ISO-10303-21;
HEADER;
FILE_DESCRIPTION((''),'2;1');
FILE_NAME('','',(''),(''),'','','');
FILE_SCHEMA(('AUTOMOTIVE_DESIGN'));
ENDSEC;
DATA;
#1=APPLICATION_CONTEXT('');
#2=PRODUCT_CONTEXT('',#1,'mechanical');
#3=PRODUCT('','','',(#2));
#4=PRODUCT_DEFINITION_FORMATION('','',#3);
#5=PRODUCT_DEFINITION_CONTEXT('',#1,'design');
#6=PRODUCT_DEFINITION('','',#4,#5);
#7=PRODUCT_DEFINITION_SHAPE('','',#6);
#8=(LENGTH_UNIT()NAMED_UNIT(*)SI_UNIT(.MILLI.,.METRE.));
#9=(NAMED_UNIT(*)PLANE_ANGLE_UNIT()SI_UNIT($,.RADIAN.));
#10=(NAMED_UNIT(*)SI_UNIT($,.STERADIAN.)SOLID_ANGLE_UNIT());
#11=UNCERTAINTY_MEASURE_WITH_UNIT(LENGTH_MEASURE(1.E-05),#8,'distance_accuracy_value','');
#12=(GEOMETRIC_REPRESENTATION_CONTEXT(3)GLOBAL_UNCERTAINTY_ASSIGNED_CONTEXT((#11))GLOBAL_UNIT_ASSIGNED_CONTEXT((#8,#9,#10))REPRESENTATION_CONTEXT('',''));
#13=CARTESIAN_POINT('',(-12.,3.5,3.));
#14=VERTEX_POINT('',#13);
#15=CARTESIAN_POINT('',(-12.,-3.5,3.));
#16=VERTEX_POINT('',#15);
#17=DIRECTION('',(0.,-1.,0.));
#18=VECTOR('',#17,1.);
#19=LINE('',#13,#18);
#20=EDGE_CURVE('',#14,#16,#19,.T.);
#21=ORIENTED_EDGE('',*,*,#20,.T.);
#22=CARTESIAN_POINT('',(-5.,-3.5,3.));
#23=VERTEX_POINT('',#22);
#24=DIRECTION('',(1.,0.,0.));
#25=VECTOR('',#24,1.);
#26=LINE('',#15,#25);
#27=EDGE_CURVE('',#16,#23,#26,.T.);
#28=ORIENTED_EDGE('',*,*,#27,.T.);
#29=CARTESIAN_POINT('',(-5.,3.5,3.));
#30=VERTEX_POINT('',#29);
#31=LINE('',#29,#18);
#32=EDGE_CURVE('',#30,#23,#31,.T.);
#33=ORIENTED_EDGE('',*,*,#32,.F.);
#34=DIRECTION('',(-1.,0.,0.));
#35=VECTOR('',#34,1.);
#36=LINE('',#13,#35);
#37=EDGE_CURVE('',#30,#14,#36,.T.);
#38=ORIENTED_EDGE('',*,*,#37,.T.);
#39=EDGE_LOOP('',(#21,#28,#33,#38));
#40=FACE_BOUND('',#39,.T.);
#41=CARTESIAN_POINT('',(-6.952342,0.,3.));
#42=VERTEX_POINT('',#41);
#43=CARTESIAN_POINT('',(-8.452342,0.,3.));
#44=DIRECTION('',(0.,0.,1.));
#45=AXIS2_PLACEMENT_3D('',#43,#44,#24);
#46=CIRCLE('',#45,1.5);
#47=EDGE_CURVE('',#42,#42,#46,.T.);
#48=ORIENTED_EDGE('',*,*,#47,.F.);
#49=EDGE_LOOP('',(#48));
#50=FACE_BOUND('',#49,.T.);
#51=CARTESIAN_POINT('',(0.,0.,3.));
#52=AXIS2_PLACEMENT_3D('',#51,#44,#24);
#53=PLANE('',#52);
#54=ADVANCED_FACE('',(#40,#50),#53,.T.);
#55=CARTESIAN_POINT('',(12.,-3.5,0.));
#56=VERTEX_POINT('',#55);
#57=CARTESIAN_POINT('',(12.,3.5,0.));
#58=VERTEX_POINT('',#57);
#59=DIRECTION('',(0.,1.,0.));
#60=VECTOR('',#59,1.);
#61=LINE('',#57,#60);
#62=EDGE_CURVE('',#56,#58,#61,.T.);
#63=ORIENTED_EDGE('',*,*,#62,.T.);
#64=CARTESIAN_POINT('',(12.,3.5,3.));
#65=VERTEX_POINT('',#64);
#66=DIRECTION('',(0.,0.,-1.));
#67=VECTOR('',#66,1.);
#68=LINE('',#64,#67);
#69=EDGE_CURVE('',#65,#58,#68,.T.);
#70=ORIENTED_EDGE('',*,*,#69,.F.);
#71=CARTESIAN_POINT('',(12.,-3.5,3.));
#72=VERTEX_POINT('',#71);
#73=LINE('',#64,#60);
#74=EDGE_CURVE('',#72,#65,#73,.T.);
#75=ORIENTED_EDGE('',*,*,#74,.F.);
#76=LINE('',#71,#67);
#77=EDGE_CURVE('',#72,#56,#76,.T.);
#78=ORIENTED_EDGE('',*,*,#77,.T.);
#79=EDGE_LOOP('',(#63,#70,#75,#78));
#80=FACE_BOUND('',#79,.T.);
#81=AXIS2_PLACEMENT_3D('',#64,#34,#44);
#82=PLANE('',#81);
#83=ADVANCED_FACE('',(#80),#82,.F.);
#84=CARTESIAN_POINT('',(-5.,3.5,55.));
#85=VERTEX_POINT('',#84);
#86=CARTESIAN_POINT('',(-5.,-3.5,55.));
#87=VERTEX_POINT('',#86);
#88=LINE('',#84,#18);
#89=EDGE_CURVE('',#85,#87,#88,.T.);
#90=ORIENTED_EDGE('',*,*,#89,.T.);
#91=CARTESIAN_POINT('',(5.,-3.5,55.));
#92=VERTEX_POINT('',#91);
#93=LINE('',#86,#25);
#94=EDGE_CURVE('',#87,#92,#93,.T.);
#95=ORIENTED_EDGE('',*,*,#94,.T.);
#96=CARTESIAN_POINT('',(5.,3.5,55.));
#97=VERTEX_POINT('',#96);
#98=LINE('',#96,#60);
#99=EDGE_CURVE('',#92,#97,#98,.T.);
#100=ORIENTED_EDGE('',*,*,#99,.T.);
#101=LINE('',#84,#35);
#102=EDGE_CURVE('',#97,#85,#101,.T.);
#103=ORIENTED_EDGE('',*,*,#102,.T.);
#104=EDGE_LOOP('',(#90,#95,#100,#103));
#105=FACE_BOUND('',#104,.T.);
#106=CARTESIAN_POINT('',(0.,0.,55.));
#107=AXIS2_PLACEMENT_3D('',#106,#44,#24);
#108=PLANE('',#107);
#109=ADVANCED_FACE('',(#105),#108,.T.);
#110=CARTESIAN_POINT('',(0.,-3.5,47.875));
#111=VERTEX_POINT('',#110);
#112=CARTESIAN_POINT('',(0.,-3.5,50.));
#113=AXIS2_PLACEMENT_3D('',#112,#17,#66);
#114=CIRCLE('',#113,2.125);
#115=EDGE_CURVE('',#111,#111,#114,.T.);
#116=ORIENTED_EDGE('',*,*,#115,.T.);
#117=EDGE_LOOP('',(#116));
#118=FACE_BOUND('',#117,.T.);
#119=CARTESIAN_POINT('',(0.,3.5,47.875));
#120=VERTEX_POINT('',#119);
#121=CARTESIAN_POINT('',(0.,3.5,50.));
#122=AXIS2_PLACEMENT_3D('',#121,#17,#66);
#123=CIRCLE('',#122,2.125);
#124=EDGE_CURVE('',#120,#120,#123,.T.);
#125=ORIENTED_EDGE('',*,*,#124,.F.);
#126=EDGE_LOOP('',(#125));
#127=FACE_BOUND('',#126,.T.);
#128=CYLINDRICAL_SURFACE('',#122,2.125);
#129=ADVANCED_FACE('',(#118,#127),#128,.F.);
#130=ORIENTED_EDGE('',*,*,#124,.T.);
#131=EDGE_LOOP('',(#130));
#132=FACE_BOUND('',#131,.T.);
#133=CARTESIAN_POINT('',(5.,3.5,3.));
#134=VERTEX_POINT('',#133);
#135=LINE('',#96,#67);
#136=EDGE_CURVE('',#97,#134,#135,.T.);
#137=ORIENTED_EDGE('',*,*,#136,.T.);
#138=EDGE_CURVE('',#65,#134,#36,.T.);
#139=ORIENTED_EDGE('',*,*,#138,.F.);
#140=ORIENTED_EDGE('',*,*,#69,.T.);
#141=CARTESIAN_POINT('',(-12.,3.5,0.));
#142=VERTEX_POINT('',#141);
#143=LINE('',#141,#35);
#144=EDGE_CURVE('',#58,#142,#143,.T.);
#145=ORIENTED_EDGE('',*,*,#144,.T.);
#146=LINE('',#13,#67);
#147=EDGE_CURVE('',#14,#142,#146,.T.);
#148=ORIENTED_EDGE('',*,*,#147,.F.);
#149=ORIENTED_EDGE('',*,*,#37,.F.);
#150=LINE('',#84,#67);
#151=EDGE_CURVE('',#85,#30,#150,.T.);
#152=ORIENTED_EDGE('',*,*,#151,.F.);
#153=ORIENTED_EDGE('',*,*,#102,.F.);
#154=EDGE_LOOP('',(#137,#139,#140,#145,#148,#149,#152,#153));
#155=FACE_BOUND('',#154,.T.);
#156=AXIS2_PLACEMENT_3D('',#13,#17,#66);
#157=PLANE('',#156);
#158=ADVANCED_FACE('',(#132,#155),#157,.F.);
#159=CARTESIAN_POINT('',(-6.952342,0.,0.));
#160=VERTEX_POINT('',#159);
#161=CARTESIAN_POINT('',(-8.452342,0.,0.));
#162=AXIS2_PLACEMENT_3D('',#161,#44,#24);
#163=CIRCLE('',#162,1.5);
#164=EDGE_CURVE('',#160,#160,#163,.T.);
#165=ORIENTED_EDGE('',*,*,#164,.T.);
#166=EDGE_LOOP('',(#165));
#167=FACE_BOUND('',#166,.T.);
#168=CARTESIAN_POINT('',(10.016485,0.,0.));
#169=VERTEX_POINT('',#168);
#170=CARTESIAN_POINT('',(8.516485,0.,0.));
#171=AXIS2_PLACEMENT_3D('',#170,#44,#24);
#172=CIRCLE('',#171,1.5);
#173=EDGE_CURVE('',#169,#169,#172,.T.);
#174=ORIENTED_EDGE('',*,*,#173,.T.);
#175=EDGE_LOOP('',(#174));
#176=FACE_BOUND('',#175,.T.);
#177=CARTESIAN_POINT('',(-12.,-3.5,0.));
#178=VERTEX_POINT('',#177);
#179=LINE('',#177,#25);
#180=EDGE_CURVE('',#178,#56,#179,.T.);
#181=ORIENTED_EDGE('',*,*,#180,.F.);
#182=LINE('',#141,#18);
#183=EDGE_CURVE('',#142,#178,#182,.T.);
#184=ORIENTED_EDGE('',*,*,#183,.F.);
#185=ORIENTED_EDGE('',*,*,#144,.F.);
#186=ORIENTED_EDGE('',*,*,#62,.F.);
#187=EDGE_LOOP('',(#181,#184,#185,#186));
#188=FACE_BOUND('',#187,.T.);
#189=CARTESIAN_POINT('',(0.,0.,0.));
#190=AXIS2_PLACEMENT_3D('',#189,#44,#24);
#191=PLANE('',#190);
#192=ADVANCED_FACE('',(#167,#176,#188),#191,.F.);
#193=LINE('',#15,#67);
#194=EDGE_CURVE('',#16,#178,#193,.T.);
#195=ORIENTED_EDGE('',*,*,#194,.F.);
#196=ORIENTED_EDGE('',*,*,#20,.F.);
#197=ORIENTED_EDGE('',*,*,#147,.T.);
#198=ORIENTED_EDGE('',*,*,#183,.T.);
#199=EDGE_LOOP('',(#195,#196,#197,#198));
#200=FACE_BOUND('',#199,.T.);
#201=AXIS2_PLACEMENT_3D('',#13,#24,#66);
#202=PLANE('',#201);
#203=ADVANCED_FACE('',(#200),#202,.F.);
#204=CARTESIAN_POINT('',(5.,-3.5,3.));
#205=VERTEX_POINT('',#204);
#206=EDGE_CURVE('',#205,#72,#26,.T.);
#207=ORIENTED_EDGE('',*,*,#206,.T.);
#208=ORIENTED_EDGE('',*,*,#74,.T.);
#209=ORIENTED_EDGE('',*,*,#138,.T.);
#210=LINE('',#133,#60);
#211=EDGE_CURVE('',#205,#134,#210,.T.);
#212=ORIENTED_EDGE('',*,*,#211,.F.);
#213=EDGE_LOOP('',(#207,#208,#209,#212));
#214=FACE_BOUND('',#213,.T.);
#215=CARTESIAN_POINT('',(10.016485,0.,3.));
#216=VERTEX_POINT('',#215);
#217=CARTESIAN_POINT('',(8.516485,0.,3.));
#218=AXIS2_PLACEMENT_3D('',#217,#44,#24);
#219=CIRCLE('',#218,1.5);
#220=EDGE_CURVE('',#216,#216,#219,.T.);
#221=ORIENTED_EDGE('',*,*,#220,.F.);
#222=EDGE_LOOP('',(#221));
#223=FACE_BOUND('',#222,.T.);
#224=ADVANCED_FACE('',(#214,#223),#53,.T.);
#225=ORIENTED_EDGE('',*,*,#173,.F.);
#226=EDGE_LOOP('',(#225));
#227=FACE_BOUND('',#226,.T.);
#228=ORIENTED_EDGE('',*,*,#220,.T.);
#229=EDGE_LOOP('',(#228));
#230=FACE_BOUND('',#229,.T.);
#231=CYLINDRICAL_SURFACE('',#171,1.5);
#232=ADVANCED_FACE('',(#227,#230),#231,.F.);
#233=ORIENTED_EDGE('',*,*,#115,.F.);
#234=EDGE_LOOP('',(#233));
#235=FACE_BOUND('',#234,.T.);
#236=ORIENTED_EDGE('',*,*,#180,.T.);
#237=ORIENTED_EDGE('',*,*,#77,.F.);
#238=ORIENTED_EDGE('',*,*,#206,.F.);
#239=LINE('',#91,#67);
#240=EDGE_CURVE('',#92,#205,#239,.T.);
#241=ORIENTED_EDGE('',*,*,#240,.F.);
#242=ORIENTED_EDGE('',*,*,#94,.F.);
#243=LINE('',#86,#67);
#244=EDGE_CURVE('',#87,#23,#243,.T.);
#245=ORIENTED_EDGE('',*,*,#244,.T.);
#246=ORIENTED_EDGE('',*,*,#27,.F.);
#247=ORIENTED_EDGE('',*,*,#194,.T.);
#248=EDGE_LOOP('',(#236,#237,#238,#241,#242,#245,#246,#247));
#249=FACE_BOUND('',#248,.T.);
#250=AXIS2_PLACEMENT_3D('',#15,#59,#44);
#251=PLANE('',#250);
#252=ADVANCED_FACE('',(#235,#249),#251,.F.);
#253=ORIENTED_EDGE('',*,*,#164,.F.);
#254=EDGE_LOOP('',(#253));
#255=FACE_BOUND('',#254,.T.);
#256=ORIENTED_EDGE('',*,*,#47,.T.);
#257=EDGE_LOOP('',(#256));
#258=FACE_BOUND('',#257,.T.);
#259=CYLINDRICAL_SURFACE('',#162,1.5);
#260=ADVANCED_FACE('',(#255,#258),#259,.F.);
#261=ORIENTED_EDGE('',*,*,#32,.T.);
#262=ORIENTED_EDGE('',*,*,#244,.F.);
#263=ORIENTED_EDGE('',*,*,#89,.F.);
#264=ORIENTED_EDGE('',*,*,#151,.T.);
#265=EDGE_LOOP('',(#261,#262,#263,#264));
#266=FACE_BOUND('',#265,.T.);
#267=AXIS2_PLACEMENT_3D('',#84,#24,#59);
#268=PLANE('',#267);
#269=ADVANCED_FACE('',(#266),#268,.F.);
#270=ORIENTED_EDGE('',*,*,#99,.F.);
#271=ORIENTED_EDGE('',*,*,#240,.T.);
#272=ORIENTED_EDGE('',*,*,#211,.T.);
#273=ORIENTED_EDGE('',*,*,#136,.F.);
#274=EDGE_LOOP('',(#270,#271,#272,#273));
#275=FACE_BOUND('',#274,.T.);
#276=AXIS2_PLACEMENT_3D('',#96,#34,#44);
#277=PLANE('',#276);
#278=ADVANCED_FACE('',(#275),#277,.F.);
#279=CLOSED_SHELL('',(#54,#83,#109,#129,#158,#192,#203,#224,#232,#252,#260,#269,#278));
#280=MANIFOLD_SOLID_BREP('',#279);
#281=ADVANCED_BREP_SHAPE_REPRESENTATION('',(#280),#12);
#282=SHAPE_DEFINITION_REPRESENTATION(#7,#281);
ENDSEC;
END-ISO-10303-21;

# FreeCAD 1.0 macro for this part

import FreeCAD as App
import Part
import Sketcher
Q = App.Units.Quantity


def add_polygon(sketch, points):
    """Adds a closed chain of lines whose ends are joined by coincident constraints."""
    first, n = sketch.GeometryCount, len(points)
    for a, b in zip(points, points[1:] + points[:1]):
        sketch.addGeometry(Part.LineSegment(App.Vector(*a, 0), App.Vector(*b, 0)), False)
    for i in range(n):
        sketch.addConstraint(Sketcher.Constraint("Coincident", first + i, 2, first + (i + 1) % n, 1))

doc = App.newDocument("Part")
body = doc.addObject("PartDesign::Body", "Body")

sketch1 = body.newObject("Sketcher::SketchObject", "Sketch")
sketch1.AttachmentSupport = (doc.getObject("XY_Plane"), [""])
sketch1.MapMode = "FlatFace"
add_polygon(sketch1, [(-12, 3.5), (-12, -3.5), (12, -3.5), (12, 3.5)])
sketch1.addConstraint([
    Sketcher.Constraint("Vertical", 0),
    Sketcher.Constraint("Horizontal", 1),
    Sketcher.Constraint("Vertical", 2),
    Sketcher.Constraint("Horizontal", 3),
    Sketcher.Constraint("Symmetric", 0, 2, 2, 2, -1, 1),
    Sketcher.Constraint("DistanceX", 1, 1, 1, 2, Q("24 mm")),
    Sketcher.Constraint("DistanceY", 0, 2, 0, 1, Q("7 mm")),
])
pad1 = body.newObject("PartDesign::Pad", "Pad")
pad1.Profile = sketch1
pad1.Length = 3

sketch2 = body.newObject("Sketcher::SketchObject", "Sketch001")
sketch2.AttachmentSupport = (doc.getObject("XY_Plane"), [""])
sketch2.MapMode = "FlatFace"
sketch2.AttachmentOffset = App.Placement(App.Vector(0, 0, 3), App.Rotation())
add_polygon(sketch2, [(-5, 3.5), (-5, -3.5), (5, -3.5), (5, 3.5)])
sketch2.addConstraint([
    Sketcher.Constraint("Vertical", 0),
    Sketcher.Constraint("Horizontal", 1),
    Sketcher.Constraint("Vertical", 2),
    Sketcher.Constraint("Horizontal", 3),
    Sketcher.Constraint("Symmetric", 0, 2, 2, 2, -1, 1),
    Sketcher.Constraint("DistanceX", 1, 1, 1, 2, Q("10 mm")),
    Sketcher.Constraint("DistanceY", 0, 2, 0, 1, Q("7 mm")),
])
pad2 = body.newObject("PartDesign::Pad", "Pad001")
pad2.Profile = sketch2
pad2.Length = 52

sketch3 = body.newObject("Sketcher::SketchObject", "Sketch002")
sketch3.AttachmentSupport = (doc.getObject("XZ_Plane"), [""])
sketch3.MapMode = "FlatFace"
sketch3.AttachmentOffset = App.Placement(App.Vector(0, 0, 3.5), App.Rotation())
sketch3.addGeometry(Part.Circle(App.Vector(0, 50, 0), App.Vector(0, 0, 1), 2.125), False)
sketch3.addConstraint([
    Sketcher.Constraint("PointOnObject", 0, 3, -2),
    Sketcher.Constraint("Diameter", 0, Q("4.25 mm")),
    Sketcher.Constraint("DistanceY", -1, 1, 0, 3, Q("50 mm")),
])
pocket1 = body.newObject("PartDesign::Pocket", "Pocket")
pocket1.Profile = sketch3
pocket1.Length = 7

sketch4 = body.newObject("Sketcher::SketchObject", "Sketch003")
sketch4.AttachmentSupport = (doc.getObject("XY_Plane"), [""])
sketch4.MapMode = "FlatFace"
sketch4.AttachmentOffset = App.Placement(App.Vector(0, 0, 3), App.Rotation())
sketch4.addGeometry(Part.Circle(App.Vector(8.516485, 0, 0), App.Vector(0, 0, 1), 1.5), False)
sketch4.addConstraint([
    Sketcher.Constraint("PointOnObject", 0, 3, -1),
    Sketcher.Constraint("Diameter", 0, Q("3 mm")),
    Sketcher.Constraint("DistanceX", -1, 1, 0, 3, Q("8.516485 mm")),
])
pocket2 = body.newObject("PartDesign::Pocket", "Pocket001")
pocket2.Profile = sketch4
pocket2.Length = 3

sketch5 = body.newObject("Sketcher::SketchObject", "Sketch004")
sketch5.AttachmentSupport = (doc.getObject("XY_Plane"), [""])
sketch5.MapMode = "FlatFace"
sketch5.AttachmentOffset = App.Placement(App.Vector(0, 0, 3), App.Rotation())
sketch5.addGeometry(Part.Circle(App.Vector(-8.452342, 0, 0), App.Vector(0, 0, 1), 1.5), False)
sketch5.addConstraint([
    Sketcher.Constraint("PointOnObject", 0, 3, -1),
    Sketcher.Constraint("Diameter", 0, Q("3 mm")),
    Sketcher.Constraint("DistanceX", 0, 3, -1, 1, Q("8.452342 mm")),
])
pocket3 = body.newObject("PartDesign::Pocket", "Pocket002")
pocket3.Profile = sketch5
pocket3.Length = 3

doc.recompute()
